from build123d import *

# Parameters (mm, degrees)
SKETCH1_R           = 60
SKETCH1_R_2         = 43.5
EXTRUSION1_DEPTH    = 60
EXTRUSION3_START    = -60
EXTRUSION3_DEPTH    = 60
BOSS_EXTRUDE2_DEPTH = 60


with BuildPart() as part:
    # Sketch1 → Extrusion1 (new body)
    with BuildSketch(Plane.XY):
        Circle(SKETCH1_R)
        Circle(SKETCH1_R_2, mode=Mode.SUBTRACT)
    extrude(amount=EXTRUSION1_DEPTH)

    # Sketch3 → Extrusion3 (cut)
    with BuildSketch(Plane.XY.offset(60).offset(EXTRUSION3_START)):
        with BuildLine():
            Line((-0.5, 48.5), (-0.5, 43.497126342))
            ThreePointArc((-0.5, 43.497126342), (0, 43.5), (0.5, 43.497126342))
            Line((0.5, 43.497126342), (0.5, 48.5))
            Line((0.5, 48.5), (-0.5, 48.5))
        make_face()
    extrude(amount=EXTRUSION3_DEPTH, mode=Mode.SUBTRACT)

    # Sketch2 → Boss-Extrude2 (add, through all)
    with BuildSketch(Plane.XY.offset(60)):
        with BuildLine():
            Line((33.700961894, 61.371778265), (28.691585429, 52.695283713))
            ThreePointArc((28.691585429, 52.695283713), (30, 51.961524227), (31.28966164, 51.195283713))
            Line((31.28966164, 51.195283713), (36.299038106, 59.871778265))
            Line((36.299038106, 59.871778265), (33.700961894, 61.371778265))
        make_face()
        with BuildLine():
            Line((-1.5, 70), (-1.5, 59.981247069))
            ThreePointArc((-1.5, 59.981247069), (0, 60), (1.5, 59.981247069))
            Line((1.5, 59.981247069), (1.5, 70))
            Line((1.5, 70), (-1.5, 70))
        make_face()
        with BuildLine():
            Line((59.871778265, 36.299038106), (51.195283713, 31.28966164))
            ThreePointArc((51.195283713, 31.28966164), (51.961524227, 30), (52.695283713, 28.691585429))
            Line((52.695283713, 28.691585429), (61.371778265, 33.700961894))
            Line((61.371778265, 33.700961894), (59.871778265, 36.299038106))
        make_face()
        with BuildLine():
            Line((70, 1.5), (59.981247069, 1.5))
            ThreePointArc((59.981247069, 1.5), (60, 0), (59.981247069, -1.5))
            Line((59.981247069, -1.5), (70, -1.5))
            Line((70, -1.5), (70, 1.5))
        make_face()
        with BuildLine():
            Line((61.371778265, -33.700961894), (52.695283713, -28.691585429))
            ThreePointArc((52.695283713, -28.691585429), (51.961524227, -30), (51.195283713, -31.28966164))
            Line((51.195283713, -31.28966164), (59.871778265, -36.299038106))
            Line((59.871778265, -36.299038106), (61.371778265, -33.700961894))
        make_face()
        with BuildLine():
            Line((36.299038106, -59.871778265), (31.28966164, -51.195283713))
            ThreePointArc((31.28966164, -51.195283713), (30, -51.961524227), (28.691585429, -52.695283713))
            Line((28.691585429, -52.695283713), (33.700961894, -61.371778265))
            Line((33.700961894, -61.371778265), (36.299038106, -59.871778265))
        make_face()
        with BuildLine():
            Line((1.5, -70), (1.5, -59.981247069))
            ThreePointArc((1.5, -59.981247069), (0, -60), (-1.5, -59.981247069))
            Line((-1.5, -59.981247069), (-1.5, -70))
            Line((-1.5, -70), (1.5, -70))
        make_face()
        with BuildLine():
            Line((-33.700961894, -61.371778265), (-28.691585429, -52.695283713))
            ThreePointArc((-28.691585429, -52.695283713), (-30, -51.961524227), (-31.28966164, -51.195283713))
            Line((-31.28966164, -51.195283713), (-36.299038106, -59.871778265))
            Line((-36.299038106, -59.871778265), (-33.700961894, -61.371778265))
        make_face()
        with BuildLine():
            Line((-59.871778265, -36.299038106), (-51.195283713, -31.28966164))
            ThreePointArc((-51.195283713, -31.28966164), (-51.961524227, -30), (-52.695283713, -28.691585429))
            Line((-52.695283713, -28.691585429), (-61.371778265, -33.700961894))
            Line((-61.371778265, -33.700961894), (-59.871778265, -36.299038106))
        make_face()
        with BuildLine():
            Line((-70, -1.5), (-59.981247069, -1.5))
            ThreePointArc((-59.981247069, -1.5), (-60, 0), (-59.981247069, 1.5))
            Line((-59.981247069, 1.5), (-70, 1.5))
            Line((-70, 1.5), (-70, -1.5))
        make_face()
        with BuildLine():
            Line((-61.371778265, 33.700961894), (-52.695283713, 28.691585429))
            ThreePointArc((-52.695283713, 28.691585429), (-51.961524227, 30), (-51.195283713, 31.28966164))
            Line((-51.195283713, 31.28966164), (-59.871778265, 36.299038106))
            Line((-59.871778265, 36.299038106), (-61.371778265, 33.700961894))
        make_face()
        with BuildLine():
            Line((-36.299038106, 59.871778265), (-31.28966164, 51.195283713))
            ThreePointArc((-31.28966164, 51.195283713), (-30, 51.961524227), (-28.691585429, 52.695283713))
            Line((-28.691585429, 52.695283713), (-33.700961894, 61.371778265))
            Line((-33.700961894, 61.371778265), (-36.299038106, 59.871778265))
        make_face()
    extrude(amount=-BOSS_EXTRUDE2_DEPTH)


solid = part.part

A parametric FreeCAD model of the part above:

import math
import FreeCAD as App
import Part
import Sketcher
Q = App.Units.Quantity

doc = App.newDocument("Part")
body = doc.addObject("PartDesign::Body", "Body")

# Sketch on XY plane
sketch1 = doc.addObject("Sketcher::SketchObject", "Sketch")
body.addObject(sketch1)
sketch1.AttachmentSupport = (doc.XY_Plane, [""])
sketch1.MapMode = "FlatFace"
sketch1.addGeometry(Part.Circle(App.Vector(0, 0, 0), App.Vector(0, 0, 1), 60), False)
sketch1.addGeometry(Part.Circle(App.Vector(0, 0, 0), App.Vector(0, 0, 1), 44), False)
sketch1.addConstraint(Sketcher.Constraint("Coincident", 0, 3, -1, 1))
sketch1.addConstraint(Sketcher.Constraint("Coincident", 1, 3, -1, 1))
sketch1.addConstraint(Sketcher.Constraint("Diameter", 0, 120.0))
sketch1.addConstraint(Sketcher.Constraint("Diameter", 1, 87.0))
pad1 = doc.addObject("PartDesign::Pad", "Pad")
body.addObject(pad1)
pad1.Profile = sketch1
pad1.Length = 60

# Sketch on XY plane
sketch2 = doc.addObject("Sketcher::SketchObject", "Sketch001")
body.addObject(sketch2)
sketch2.AttachmentSupport = (doc.XY_Plane, [""])
sketch2.MapMode = "FlatFace"
sketch2.addGeometry(Part.LineSegment(App.Vector(-0.5, 48.5, 0), App.Vector(-0.5, 43.5, 0)), False)
sketch2.addGeometry(Part.ArcOfCircle(Part.Circle(App.Vector(0, 0, 0), App.Vector(0, 0, 1), 43.5), math.radians(89.34), math.radians(90.66)), False)
sketch2.addGeometry(Part.LineSegment(App.Vector(0.5, 43.5, 0), App.Vector(0.5, 48.5, 0)), False)
sketch2.addGeometry(Part.LineSegment(App.Vector(0.5, 48.5, 0), App.Vector(-0.5, 48.5, 0)), False)
sketch2.addConstraint(Sketcher.Constraint("Coincident", 0, 2, 1, 2))
sketch2.addConstraint(Sketcher.Constraint("Coincident", 1, 1, 2, 1))
sketch2.addConstraint(Sketcher.Constraint("Coincident", 2, 2, 3, 1))
sketch2.addConstraint(Sketcher.Constraint("Coincident", 3, 2, 0, 1))
sketch2.addConstraint(Sketcher.Constraint("Vertical", 0))
sketch2.addConstraint(Sketcher.Constraint("Vertical", 2))
sketch2.addConstraint(Sketcher.Constraint("Horizontal", 3))
sketch2.addConstraint(Sketcher.Constraint("Coincident", 1, 3, -1, 1))
sketch2.addConstraint(Sketcher.Constraint("Horizontal", 0, 2, 1, 1))
sketch2.addConstraint(Sketcher.Constraint("DistanceX", 3, 2, 3, 1, 1.0))
sketch2.addConstraint(Sketcher.Constraint("DistanceY", -1, 1, 2, 2, 48.5))
sketch2.addConstraint(Sketcher.Constraint("Radius", 1, 43.500002))
pocket1 = doc.addObject("PartDesign::Pocket", "Pocket")
body.addObject(pocket1)
pocket1.Profile = sketch2
pocket1.Length = 60
pocket1.Reversed = True

# Sketch on XY plane
sketch3 = doc.addObject("Sketcher::SketchObject", "Sketch002")
body.addObject(sketch3)
sketch3.AttachmentSupport = (doc.XY_Plane, [""])
sketch3.MapMode = "FlatFace"
sketch3.AttachmentOffset = App.Placement(App.Vector(0, 0, 60), App.Rotation())
sketch3.addGeometry(Part.LineSegment(App.Vector(33.7, 61.4, 0), App.Vector(28.7, 52.7, 0)), False)
sketch3.addGeometry(Part.ArcOfCircle(Part.Circle(App.Vector(0, 0, 0), App.Vector(0, 0, 1), 60), math.radians(58.57), math.radians(61.43)), False)
sketch3.addGeometry(Part.LineSegment(App.Vector(31.3, 51.2, 0), App.Vector(36.3, 59.9, 0)), False)
sketch3.addGeometry(Part.LineSegment(App.Vector(36.3, 59.9, 0), App.Vector(33.7, 61.4, 0)), False)
sketch3.addGeometry(Part.LineSegment(App.Vector(-1.5, 70, 0), App.Vector(-1.5, 60, 0)), False)
sketch3.addGeometry(Part.ArcOfCircle(Part.Circle(App.Vector(0, 0, 0), App.Vector(0, 0, 1), 60), math.radians(88.57), math.radians(91.43)), False)
sketch3.addGeometry(Part.LineSegment(App.Vector(1.5, 60, 0), App.Vector(1.5, 70, 0)), False)
sketch3.addGeometry(Part.LineSegment(App.Vector(1.5, 70, 0), App.Vector(-1.5, 70, 0)), False)
sketch3.addGeometry(Part.LineSegment(App.Vector(59.9, 36.3, 0), App.Vector(51.2, 31.3, 0)), False)
sketch3.addGeometry(Part.ArcOfCircle(Part.Circle(App.Vector(0, 0, 0), App.Vector(0, 0, 1), 60), math.radians(28.57), math.radians(31.43)), False)
sketch3.addGeometry(Part.LineSegment(App.Vector(52.7, 28.7, 0), App.Vector(61.4, 33.7, 0)), False)
sketch3.addGeometry(Part.LineSegment(App.Vector(61.4, 33.7, 0), App.Vector(59.9, 36.3, 0)), False)
sketch3.addGeometry(Part.LineSegment(App.Vector(70, 1.5, 0), App.Vector(60, 1.5, 0)), False)
sketch3.addGeometry(Part.ArcOfCircle(Part.Circle(App.Vector(0, 0, 0), App.Vector(0, 0, 1), 60), math.radians(-1.43), math.radians(1.43)), False)
sketch3.addGeometry(Part.LineSegment(App.Vector(60, -1.5, 0), App.Vector(70, -1.5, 0)), False)
sketch3.addGeometry(Part.LineSegment(App.Vector(70, -1.5, 0), App.Vector(70, 1.5, 0)), False)
sketch3.addGeometry(Part.LineSegment(App.Vector(61.4, -33.7, 0), App.Vector(52.7, -28.7, 0)), False)
sketch3.addGeometry(Part.ArcOfCircle(Part.Circle(App.Vector(0, 0, 0), App.Vector(0, 0, 1), 60), math.radians(-31.43), math.radians(-28.57)), False)
sketch3.addGeometry(Part.LineSegment(App.Vector(51.2, -31.3, 0), App.Vector(59.9, -36.3, 0)), False)
sketch3.addGeometry(Part.LineSegment(App.Vector(59.9, -36.3, 0), App.Vector(61.4, -33.7, 0)), False)
sketch3.addGeometry(Part.LineSegment(App.Vector(36.3, -59.9, 0), App.Vector(31.3, -51.2, 0)), False)
sketch3.addGeometry(Part.ArcOfCircle(Part.Circle(App.Vector(0, 0, 0), App.Vector(0, 0, 1), 60), math.radians(-61.43), math.radians(-58.57)), False)
sketch3.addGeometry(Part.LineSegment(App.Vector(28.7, -52.7, 0), App.Vector(33.7, -61.4, 0)), False)
sketch3.addGeometry(Part.LineSegment(App.Vector(33.7, -61.4, 0), App.Vector(36.3, -59.9, 0)), False)
sketch3.addGeometry(Part.LineSegment(App.Vector(1.5, -70, 0), App.Vector(1.5, -60, 0)), False)
sketch3.addGeometry(Part.ArcOfCircle(Part.Circle(App.Vector(0, 0, 0), App.Vector(0, 0, 1), 60), math.radians(-91.43), math.radians(-88.57)), False)
sketch3.addGeometry(Part.LineSegment(App.Vector(-1.5, -60, 0), App.Vector(-1.5, -70, 0)), False)
sketch3.addGeometry(Part.LineSegment(App.Vector(-1.5, -70, 0), App.Vector(1.5, -70, 0)), False)
sketch3.addGeometry(Part.LineSegment(App.Vector(-33.7, -61.4, 0), App.Vector(-28.7, -52.7, 0)), False)
sketch3.addGeometry(Part.ArcOfCircle(Part.Circle(App.Vector(0, 0, 0), App.Vector(0, 0, 1), 60), math.radians(-121.43), math.radians(-118.57)), False)
sketch3.addGeometry(Part.LineSegment(App.Vector(-31.3, -51.2, 0), App.Vector(-36.3, -59.9, 0)), False)
sketch3.addGeometry(Part.LineSegment(App.Vector(-36.3, -59.9, 0), App.Vector(-33.7, -61.4, 0)), False)
sketch3.addGeometry(Part.LineSegment(App.Vector(-59.9, -36.3, 0), App.Vector(-51.2, -31.3, 0)), False)
sketch3.addGeometry(Part.ArcOfCircle(Part.Circle(App.Vector(0, 0, 0), App.Vector(0, 0, 1), 60), math.radians(-151.43), math.radians(-148.57)), False)
sketch3.addGeometry(Part.LineSegment(App.Vector(-52.7, -28.7, 0), App.Vector(-61.4, -33.7, 0)), False)
sketch3.addGeometry(Part.LineSegment(App.Vector(-61.4, -33.7, 0), App.Vector(-59.9, -36.3, 0)), False)
sketch3.addGeometry(Part.LineSegment(App.Vector(-70, -1.5, 0), App.Vector(-60, -1.5, 0)), False)
sketch3.addGeometry(Part.ArcOfCircle(Part.Circle(App.Vector(0, 0, 0), App.Vector(0, 0, 1), 60), math.radians(178.57), math.radians(181.43)), False)
sketch3.addGeometry(Part.LineSegment(App.Vector(-60, 1.5, 0), App.Vector(-70, 1.5, 0)), False)
sketch3.addGeometry(Part.LineSegment(App.Vector(-70, 1.5, 0), App.Vector(-70, -1.5, 0)), False)
sketch3.addGeometry(Part.LineSegment(App.Vector(-61.4, 33.7, 0), App.Vector(-52.7, 28.7, 0)), False)
sketch3.addGeometry(Part.ArcOfCircle(Part.Circle(App.Vector(0, 0, 0), App.Vector(0, 0, 1), 60), math.radians(148.57), math.radians(151.43)), False)
sketch3.addGeometry(Part.LineSegment(App.Vector(-51.2, 31.3, 0), App.Vector(-59.9, 36.3, 0)), False)
sketch3.addGeometry(Part.LineSegment(App.Vector(-59.9, 36.3, 0), App.Vector(-61.4, 33.7, 0)), False)
sketch3.addGeometry(Part.LineSegment(App.Vector(-36.3, 59.9, 0), App.Vector(-31.3, 51.2, 0)), False)
sketch3.addGeometry(Part.ArcOfCircle(Part.Circle(App.Vector(0, 0, 0), App.Vector(0, 0, 1), 60), math.radians(118.57), math.radians(121.43)), False)
sketch3.addGeometry(Part.LineSegment(App.Vector(-28.7, 52.7, 0), App.Vector(-33.7, 61.4, 0)), False)
sketch3.addGeometry(Part.LineSegment(App.Vector(-33.7, 61.4, 0), App.Vector(-36.3, 59.9, 0)), False)
sketch3.addConstraint(Sketcher.Constraint("Coincident", 0, 2, 1, 2))
sketch3.addConstraint(Sketcher.Constraint("Coincident", 1, 1, 2, 1))
sketch3.addConstraint(Sketcher.Constraint("Coincident", 2, 2, 3, 1))
sketch3.addConstraint(Sketcher.Constraint("Coincident", 3, 2, 0, 1))
sketch3.addConstraint(Sketcher.Constraint("Coincident", 4, 2, 5, 2))
sketch3.addConstraint(Sketcher.Constraint("Coincident", 5, 1, 6, 1))
sketch3.addConstraint(Sketcher.Constraint("Coincident", 6, 2, 7, 1))
sketch3.addConstraint(Sketcher.Constraint("Coincident", 7, 2, 4, 1))
sketch3.addConstraint(Sketcher.Constraint("Coincident", 8, 2, 9, 2))
sketch3.addConstraint(Sketcher.Constraint("Coincident", 9, 1, 10, 1))
sketch3.addConstraint(Sketcher.Constraint("Coincident", 10, 2, 11, 1))
sketch3.addConstraint(Sketcher.Constraint("Coincident", 11, 2, 8, 1))
sketch3.addConstraint(Sketcher.Constraint("Coincident", 12, 2, 13, 2))
sketch3.addConstraint(Sketcher.Constraint("Coincident", 13, 1, 14, 1))
sketch3.addConstraint(Sketcher.Constraint("Coincident", 14, 2, 15, 1))
sketch3.addConstraint(Sketcher.Constraint("Coincident", 15, 2, 12, 1))
sketch3.addConstraint(Sketcher.Constraint("Coincident", 16, 2, 17, 2))
sketch3.addConstraint(Sketcher.Constraint("Coincident", 17, 1, 18, 1))
sketch3.addConstraint(Sketcher.Constraint("Coincident", 18, 2, 19, 1))
sketch3.addConstraint(Sketcher.Constraint("Coincident", 19, 2, 16, 1))
sketch3.addConstraint(Sketcher.Constraint("Coincident", 20, 2, 21, 2))
sketch3.addConstraint(Sketcher.Constraint("Coincident", 21, 1, 22, 1))
sketch3.addConstraint(Sketcher.Constraint("Coincident", 22, 2, 23, 1))
sketch3.addConstraint(Sketcher.Constraint("Coincident", 23, 2, 20, 1))
sketch3.addConstraint(Sketcher.Constraint("Coincident", 24, 2, 25, 2))
sketch3.addConstraint(Sketcher.Constraint("Coincident", 25, 1, 26, 1))
sketch3.addConstraint(Sketcher.Constraint("Coincident", 26, 2, 27, 1))
sketch3.addConstraint(Sketcher.Constraint("Coincident", 27, 2, 24, 1))
sketch3.addConstraint(Sketcher.Constraint("Coincident", 28, 2, 29, 2))
sketch3.addConstraint(Sketcher.Constraint("Coincident", 29, 1, 30, 1))
sketch3.addConstraint(Sketcher.Constraint("Coincident", 30, 2, 31, 1))
sketch3.addConstraint(Sketcher.Constraint("Coincident", 31, 2, 28, 1))
sketch3.addConstraint(Sketcher.Constraint("Coincident", 32, 2, 33, 2))
sketch3.addConstraint(Sketcher.Constraint("Coincident", 33, 1, 34, 1))
sketch3.addConstraint(Sketcher.Constraint("Coincident", 34, 2, 35, 1))
sketch3.addConstraint(Sketcher.Constraint("Coincident", 35, 2, 32, 1))
sketch3.addConstraint(Sketcher.Constraint("Coincident", 36, 2, 37, 2))
sketch3.addConstraint(Sketcher.Constraint("Coincident", 37, 1, 38, 1))
sketch3.addConstraint(Sketcher.Constraint("Coincident", 38, 2, 39, 1))
sketch3.addConstraint(Sketcher.Constraint("Coincident", 39, 2, 36, 1))
sketch3.addConstraint(Sketcher.Constraint("Coincident", 40, 2, 41, 2))
sketch3.addConstraint(Sketcher.Constraint("Coincident", 41, 1, 42, 1))
sketch3.addConstraint(Sketcher.Constraint("Coincident", 42, 2, 43, 1))
sketch3.addConstraint(Sketcher.Constraint("Coincident", 43, 2, 40, 1))
sketch3.addConstraint(Sketcher.Constraint("Coincident", 44, 2, 45, 2))
sketch3.addConstraint(Sketcher.Constraint("Coincident", 45, 1, 46, 1))
sketch3.addConstraint(Sketcher.Constraint("Coincident", 46, 2, 47, 1))
sketch3.addConstraint(Sketcher.Constraint("Coincident", 47, 2, 44, 1))
sketch3.addConstraint(Sketcher.Constraint("Vertical", 4))
sketch3.addConstraint(Sketcher.Constraint("Vertical", 6))
sketch3.addConstraint(Sketcher.Constraint("Horizontal", 7))
sketch3.addConstraint(Sketcher.Constraint("Horizontal", 12))
sketch3.addConstraint(Sketcher.Constraint("Horizontal", 14))
sketch3.addConstraint(Sketcher.Constraint("Vertical", 15))
sketch3.addConstraint(Sketcher.Constraint("Vertical", 24))
sketch3.addConstraint(Sketcher.Constraint("Vertical", 26))
sketch3.addConstraint(Sketcher.Constraint("Horizontal", 27))
sketch3.addConstraint(Sketcher.Constraint("Horizontal", 36))
sketch3.addConstraint(Sketcher.Constraint("Horizontal", 38))
sketch3.addConstraint(Sketcher.Constraint("Vertical", 39))
sketch3.addConstraint(Sketcher.Constraint("Coincident", 1, 3, -1, 1))
sketch3.addConstraint(Sketcher.Constraint("Coincident", 5, 3, -1, 1))
sketch3.addConstraint(Sketcher.Constraint("Coincident", 9, 3, -1, 1))
sketch3.addConstraint(Sketcher.Constraint("Coincident", 13, 3, -1, 1))
sketch3.addConstraint(Sketcher.Constraint("Coincident", 17, 3, -1, 1))
sketch3.addConstraint(Sketcher.Constraint("Coincident", 21, 3, -1, 1))
sketch3.addConstraint(Sketcher.Constraint("Coincident", 25, 3, -1, 1))
sketch3.addConstraint(Sketcher.Constraint("Coincident", 29, 3, -1, 1))
sketch3.addConstraint(Sketcher.Constraint("Coincident", 33, 3, -1, 1))
sketch3.addConstraint(Sketcher.Constraint("Coincident", 37, 3, -1, 1))
sketch3.addConstraint(Sketcher.Constraint("Coincident", 41, 3, -1, 1))
sketch3.addConstraint(Sketcher.Constraint("Coincident", 45, 3, -1, 1))
sketch3.addConstraint(Sketcher.Constraint("Equal", 1, 5))
sketch3.addConstraint(Sketcher.Constraint("Equal", 5, 9))
sketch3.addConstraint(Sketcher.Constraint("Equal", 9, 13))
sketch3.addConstraint(Sketcher.Constraint("Equal", 13, 17))
sketch3.addConstraint(Sketcher.Constraint("Equal", 17, 21))
sketch3.addConstraint(Sketcher.Constraint("Equal", 21, 25))
sketch3.addConstraint(Sketcher.Constraint("Equal", 25, 29))
sketch3.addConstraint(Sketcher.Constraint("Equal", 29, 33))
sketch3.addConstraint(Sketcher.Constraint("Equal", 33, 37))
sketch3.addConstraint(Sketcher.Constraint("Equal", 37, 41))
sketch3.addConstraint(Sketcher.Constraint("Equal", 41, 45))
sketch3.addConstraint(Sketcher.Constraint("Symmetric", 6, 2, 26, 2, -1, 1))
sketch3.addConstraint(Sketcher.Constraint("Symmetric", 2, 2, 30, 2, -1, 1))
sketch3.addConstraint(Sketcher.Constraint("Symmetric", 3, 2, 31, 2, -1, 1))
sketch3.addConstraint(Sketcher.Constraint("Symmetric", 10, 2, 34, 2, -1, 1))
sketch3.addConstraint(Sketcher.Constraint("Symmetric", 11, 2, 35, 2, -1, 1))
sketch3.addConstraint(Sketcher.Constraint("Symmetric", 14, 2, 38, 2, -1, 1))
sketch3.addConstraint(Sketcher.Constraint("Symmetric", 18, 2, 42, 2, -1, 1))
sketch3.addConstraint(Sketcher.Constraint("Symmetric", 19, 2, 43, 2, -1, 1))
sketch3.addConstraint(Sketcher.Constraint("Symmetric", 22, 2, 46, 2, -1, 1))
sketch3.addConstraint(Sketcher.Constraint("Symmetric", 23, 2, 47, 2, -1, 1))
sketch3.addConstraint(Sketcher.Constraint("Symmetric", 23, 2, 30, 2, -2))
sketch3.addConstraint(Sketcher.Constraint("Symmetric", 22, 2, 31, 2, -2))
sketch3.addConstraint(Sketcher.Constraint("Symmetric", 19, 2, 34, 2, -2))
sketch3.addConstraint(Sketcher.Constraint("Symmetric", 18, 2, 35, 2, -2))
sketch3.addConstraint(Sketcher.Constraint("Parallel", 0, 2))
sketch3.addConstraint(Sketcher.Constraint("Perpendicular", 2, 3))
sketch3.addConstraint(Sketcher.Constraint("Parallel", 8, 10))
sketch3.addConstraint(Sketcher.Constraint("Perpendicular", 10, 11))
sketch3.addConstraint(Sketcher.Constraint("Parallel", 3, 16))
sketch3.addConstraint(Sketcher.Constraint("Parallel", 16, 18))
sketch3.addConstraint(Sketcher.Constraint("Perpendicular", 18, 19))
sketch3.addConstraint(Sketcher.Constraint("Parallel", 11, 20))
sketch3.addConstraint(Sketcher.Constraint("Parallel", 20, 22))
sketch3.addConstraint(Sketcher.Constraint("Parallel", 19, 28))
sketch3.addConstraint(Sketcher.Constraint("Parallel", 28, 30))
sketch3.addConstraint(Sketcher.Constraint("Parallel", 23, 32))
sketch3.addConstraint(Sketcher.Constraint("Parallel", 32, 34))
sketch3.addConstraint(Sketcher.Constraint("Parallel", 31, 40))
sketch3.addConstraint(Sketcher.Constraint("Parallel", 40, 42))
sketch3.addConstraint(Sketcher.Constraint("Parallel", 35, 44))
sketch3.addConstraint(Sketcher.Constraint("Parallel", 44, 46))
sketch3.addConstraint(Sketcher.Constraint("Horizontal", 4, 2, 5, 1))
sketch3.addConstraint(Sketcher.Constraint("Horizontal", 24, 2, 25, 1))
sketch3.addConstraint(Sketcher.Constraint("Horizontal", 14, 2, 36, 2))
sketch3.addConstraint(Sketcher.Constraint("Horizontal", 15, 2, 37, 1))
sketch3.addConstraint(Sketcher.Constraint("Equal", 38, 4))
sketch3.addConstraint(Sketcher.Constraint("Equal", 27, 15))
sketch3.addConstraint(Sketcher.Constraint("Equal", 0, 2))
sketch3.addConstraint(Sketcher.Constraint("Equal", 2, 8))
sketch3.addConstraint(Sketcher.Constraint("Equal", 8, 10))
sketch3.addConstraint(Sketcher.Constraint("Equal", 3, 11))
sketch3.addConstraint(Sketcher.Constraint("Radius", 1, 60.0))
sketch3.addConstraint(Sketcher.Constraint("DistanceX", 7, 2, 7, 1, 3.0))
sketch3.addConstraint(Sketcher.Constraint("Angle", 0, Q("-120 deg")))
sketch3.addConstraint(Sketcher.Constraint("Distance", 3, 3.0))
sketch3.addConstraint(Sketcher.Constraint("DistanceY", -1, 1, 6, 2, 70.0))
sketch3.addConstraint(Sketcher.Constraint("DistanceY", 8, 2, 10, 2, 2.4113))
pad2 = doc.addObject("PartDesign::Pad", "Pad001")
body.addObject(pad2)
pad2.Profile = sketch3
pad2.Length = 60
pad2.Reversed = True

doc.recompute()
